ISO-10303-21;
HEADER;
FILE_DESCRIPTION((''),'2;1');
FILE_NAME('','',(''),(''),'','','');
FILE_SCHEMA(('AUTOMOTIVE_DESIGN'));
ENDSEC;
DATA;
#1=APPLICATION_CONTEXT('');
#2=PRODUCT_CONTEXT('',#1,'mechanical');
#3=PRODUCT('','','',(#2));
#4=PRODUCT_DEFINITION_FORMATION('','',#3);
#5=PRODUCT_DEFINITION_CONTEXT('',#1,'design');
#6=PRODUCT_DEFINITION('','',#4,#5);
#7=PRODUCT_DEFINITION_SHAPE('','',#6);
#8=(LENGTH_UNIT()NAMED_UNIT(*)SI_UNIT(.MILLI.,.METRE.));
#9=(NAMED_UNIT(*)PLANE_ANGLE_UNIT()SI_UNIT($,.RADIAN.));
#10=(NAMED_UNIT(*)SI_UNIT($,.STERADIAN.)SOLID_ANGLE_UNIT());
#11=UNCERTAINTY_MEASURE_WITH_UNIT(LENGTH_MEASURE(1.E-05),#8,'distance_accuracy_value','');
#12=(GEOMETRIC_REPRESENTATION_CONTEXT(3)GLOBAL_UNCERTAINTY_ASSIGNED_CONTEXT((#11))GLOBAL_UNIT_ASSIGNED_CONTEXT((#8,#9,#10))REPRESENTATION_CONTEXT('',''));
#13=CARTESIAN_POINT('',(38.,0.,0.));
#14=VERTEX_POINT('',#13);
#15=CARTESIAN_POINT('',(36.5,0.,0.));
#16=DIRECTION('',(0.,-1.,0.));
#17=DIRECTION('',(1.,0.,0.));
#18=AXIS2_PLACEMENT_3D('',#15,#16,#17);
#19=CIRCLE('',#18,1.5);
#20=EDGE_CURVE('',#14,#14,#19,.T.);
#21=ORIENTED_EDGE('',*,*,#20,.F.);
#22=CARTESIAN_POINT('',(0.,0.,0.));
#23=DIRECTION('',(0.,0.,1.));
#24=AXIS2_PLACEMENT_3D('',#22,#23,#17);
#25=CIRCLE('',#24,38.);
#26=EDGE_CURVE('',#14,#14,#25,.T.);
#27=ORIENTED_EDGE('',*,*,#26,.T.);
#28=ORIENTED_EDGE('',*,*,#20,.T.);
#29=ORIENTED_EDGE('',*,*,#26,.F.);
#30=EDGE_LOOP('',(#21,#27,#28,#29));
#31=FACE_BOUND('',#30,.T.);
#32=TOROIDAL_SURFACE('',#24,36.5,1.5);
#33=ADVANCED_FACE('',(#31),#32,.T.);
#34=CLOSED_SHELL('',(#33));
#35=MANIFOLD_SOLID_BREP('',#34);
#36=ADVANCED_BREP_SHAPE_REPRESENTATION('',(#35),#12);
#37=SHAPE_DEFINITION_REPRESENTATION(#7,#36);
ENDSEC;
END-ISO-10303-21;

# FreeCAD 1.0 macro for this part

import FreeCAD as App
import Part
import Sketcher
Q = App.Units.Quantity

doc = App.newDocument("Part")
params = doc.addObject("Spreadsheet::Sheet", "Params")
for row, (alias, value) in enumerate([
    ("sketch1_diameter", "3 mm"),
    ("revolution_angle", "360 deg"),
], start=1):
    params.set(f"A{row}", alias)
    params.set(f"B{row}", "=" + value)
    params.setAlias(f"B{row}", alias)

body = doc.addObject("PartDesign::Body", "Body")

sketch1 = body.newObject("Sketcher::SketchObject", "Sketch")
sketch1.AttachmentSupport = (doc.getObject("XZ_Plane"), [""])
sketch1.MapMode = "FlatFace"
sketch1.addGeometry(Part.Circle(App.Vector(36.5, 0, 0), App.Vector(0, 0, 1), 1.5), False)
sketch1.addConstraint([
    Sketcher.Constraint("PointOnObject", 0, 3, -1),
    Sketcher.Constraint("Diameter", 0, Q("3 mm")),
    Sketcher.Constraint("DistanceX", -1, 1, 0, 3, Q("36.5 mm")),
])
sketch1.setExpression("Constraints[1]", "Params.sketch1_diameter")
revolution = body.newObject("PartDesign::Revolution", "Revolution")
revolution.Profile = sketch1
revolution.ReferenceAxis = (sketch1, ["V_Axis"])
revolution.setExpression("Angle", "Params.revolution_angle")

doc.recompute()
